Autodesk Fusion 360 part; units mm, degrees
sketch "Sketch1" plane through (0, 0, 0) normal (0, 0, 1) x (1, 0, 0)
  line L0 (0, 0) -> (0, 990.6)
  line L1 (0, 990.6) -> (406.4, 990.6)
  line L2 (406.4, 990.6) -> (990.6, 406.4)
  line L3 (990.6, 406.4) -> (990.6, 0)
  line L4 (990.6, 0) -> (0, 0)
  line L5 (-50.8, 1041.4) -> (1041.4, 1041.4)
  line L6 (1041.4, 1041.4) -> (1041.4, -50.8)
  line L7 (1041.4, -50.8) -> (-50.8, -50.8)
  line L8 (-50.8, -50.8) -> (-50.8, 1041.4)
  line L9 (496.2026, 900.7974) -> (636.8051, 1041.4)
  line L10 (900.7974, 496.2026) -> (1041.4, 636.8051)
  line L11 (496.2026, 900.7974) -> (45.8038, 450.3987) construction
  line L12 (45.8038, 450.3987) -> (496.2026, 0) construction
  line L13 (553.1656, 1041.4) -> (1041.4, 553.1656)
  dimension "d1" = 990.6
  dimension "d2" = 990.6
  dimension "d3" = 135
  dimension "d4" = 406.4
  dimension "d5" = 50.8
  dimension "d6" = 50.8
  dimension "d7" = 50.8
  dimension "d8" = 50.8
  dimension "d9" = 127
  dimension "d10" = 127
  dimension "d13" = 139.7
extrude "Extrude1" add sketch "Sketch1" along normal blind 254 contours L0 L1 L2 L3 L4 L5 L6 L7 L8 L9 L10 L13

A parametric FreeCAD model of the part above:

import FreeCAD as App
import Part
import Sketcher
from FreeCAD import Vector
Q = App.Units.Quantity

doc = App.newDocument("Part")
params = doc.addObject("Spreadsheet::Sheet", "Params")
for row, (alias, value) in enumerate([
    ("sketch1_width", "39 in"),
    ("sketch1_width2", "16 in"),
    ("sketch1_length", "5 in"),
    ("sketch1_length2", "5.5 in"),
    ("pad1_length", "10 in"),
], start=1):
    params.set(f"A{row}", alias)
    params.set(f"B{row}", "=" + value)
    params.setAlias(f"B{row}", alias)

body = doc.addObject("PartDesign::Body", "Body")

# Sketch on XY plane
sketch1 = body.newObject("Sketcher::SketchObject", "Sketch")
sketch1.AttachmentSupport = (doc.getObject("XY_Plane"), [""])
sketch1.MapMode = "FlatFace"
sketch1.addGeometry([
    Part.LineSegment(Vector(991, 0, 0), Vector(0, 0, 0)),  # 0
    Part.LineSegment(Vector(0, 0, 0), Vector(0, 991, 0)),  # 1
    Part.LineSegment(Vector(0, 991, 0), Vector(406, 991, 0)),  # 2
    Part.LineSegment(Vector(406, 991, 0), Vector(496, 901, 0)),  # 3
    Part.LineSegment(Vector(496, 901, 0), Vector(595, 1000, 0)),  # 4
    Part.LineSegment(Vector(595, 1000, 0), Vector(553, 1041, 0)),  # 5
    Part.LineSegment(Vector(553, 1041, 0), Vector(-51, 1041, 0)),  # 6
    Part.LineSegment(Vector(-51, 1041, 0), Vector(-51, -51, 0)),  # 7
    Part.LineSegment(Vector(-51, -51, 0), Vector(1041, -51, 0)),  # 8
    Part.LineSegment(Vector(1041, -51, 0), Vector(1041, 553, 0)),  # 9
    Part.LineSegment(Vector(1041, 553, 0), Vector(1000, 595, 0)),  # 10
    Part.LineSegment(Vector(1000, 595, 0), Vector(901, 496, 0)),  # 11
    Part.LineSegment(Vector(901, 496, 0), Vector(991, 406, 0)),  # 12
    Part.LineSegment(Vector(991, 406, 0), Vector(991, 0, 0)),  # 13
], False)
sketch1.addConstraint([
    Sketcher.Constraint("Coincident", 0, 2, 1, 1),
    Sketcher.Constraint("Coincident", 1, 2, 2, 1),
    Sketcher.Constraint("Coincident", 2, 2, 3, 1),
    Sketcher.Constraint("Coincident", 3, 2, 4, 1),
    Sketcher.Constraint("Coincident", 4, 2, 5, 1),
    Sketcher.Constraint("Coincident", 5, 2, 6, 1),
    Sketcher.Constraint("Coincident", 6, 2, 7, 1),
    Sketcher.Constraint("Coincident", 7, 2, 8, 1),
    Sketcher.Constraint("Coincident", 8, 2, 9, 1),
    Sketcher.Constraint("Coincident", 9, 2, 10, 1),
    Sketcher.Constraint("Coincident", 10, 2, 11, 1),
    Sketcher.Constraint("Coincident", 11, 2, 12, 1),
    Sketcher.Constraint("Coincident", 12, 2, 13, 1),
    Sketcher.Constraint("Coincident", 13, 2, 0, 1),
    Sketcher.Constraint("Horizontal", 0),
    Sketcher.Constraint("Vertical", 1),
    Sketcher.Constraint("Horizontal", 2),
    Sketcher.Constraint("Horizontal", 6),
    Sketcher.Constraint("Vertical", 7),
    Sketcher.Constraint("Horizontal", 8),
    Sketcher.Constraint("Vertical", 9),
    Sketcher.Constraint("Vertical", 13),
    Sketcher.Constraint("Coincident", 0, 2, -1, 1),
    Sketcher.Constraint("Perpendicular", 3, 4),
    Sketcher.Constraint("Perpendicular", 4, 5),
    Sketcher.Constraint("Parallel", 5, 10),
    Sketcher.Constraint("Perpendicular", 10, 11),
    Sketcher.Constraint("Perpendicular", 11, 12),
    Sketcher.Constraint("Equal", 0, 1),
    Sketcher.Constraint("Equal", 8, 7),
    Sketcher.Constraint("Equal", 6, 9),
    Sketcher.Constraint("Equal", 2, 13),
    Sketcher.Constraint("Equal", 5, 10),
    Sketcher.Constraint("Equal", 4, 11),
    Sketcher.Constraint("Equal", 3, 12),
    Sketcher.Constraint("DistanceX", 0, 2, 0, 1, Q("39 in")),
    Sketcher.Constraint("DistanceX", 2, 1, 2, 2, Q("16 in")),
    Sketcher.Constraint("Distance", 3, Q("5 in")),
    Sketcher.Constraint("DistanceX", 6, 2, -1, 1, Q("2 in")),
    Sketcher.Constraint("DistanceY", 2, 2, 5, 2, Q("2 in")),
    Sketcher.Constraint("Distance", 4, Q("5.5 in")),
])
sketch1.setExpression("Constraints[35]", "Params.sketch1_width")
sketch1.setExpression("Constraints[36]", "Params.sketch1_width2")
sketch1.setExpression("Constraints[37]", "Params.sketch1_length")
sketch1.setExpression("Constraints[40]", "Params.sketch1_length2")
pad1 = body.newObject("PartDesign::Pad", "Pad")
pad1.Profile = sketch1
pad1.setExpression("Length", "Params.pad1_length")

doc.recompute()
